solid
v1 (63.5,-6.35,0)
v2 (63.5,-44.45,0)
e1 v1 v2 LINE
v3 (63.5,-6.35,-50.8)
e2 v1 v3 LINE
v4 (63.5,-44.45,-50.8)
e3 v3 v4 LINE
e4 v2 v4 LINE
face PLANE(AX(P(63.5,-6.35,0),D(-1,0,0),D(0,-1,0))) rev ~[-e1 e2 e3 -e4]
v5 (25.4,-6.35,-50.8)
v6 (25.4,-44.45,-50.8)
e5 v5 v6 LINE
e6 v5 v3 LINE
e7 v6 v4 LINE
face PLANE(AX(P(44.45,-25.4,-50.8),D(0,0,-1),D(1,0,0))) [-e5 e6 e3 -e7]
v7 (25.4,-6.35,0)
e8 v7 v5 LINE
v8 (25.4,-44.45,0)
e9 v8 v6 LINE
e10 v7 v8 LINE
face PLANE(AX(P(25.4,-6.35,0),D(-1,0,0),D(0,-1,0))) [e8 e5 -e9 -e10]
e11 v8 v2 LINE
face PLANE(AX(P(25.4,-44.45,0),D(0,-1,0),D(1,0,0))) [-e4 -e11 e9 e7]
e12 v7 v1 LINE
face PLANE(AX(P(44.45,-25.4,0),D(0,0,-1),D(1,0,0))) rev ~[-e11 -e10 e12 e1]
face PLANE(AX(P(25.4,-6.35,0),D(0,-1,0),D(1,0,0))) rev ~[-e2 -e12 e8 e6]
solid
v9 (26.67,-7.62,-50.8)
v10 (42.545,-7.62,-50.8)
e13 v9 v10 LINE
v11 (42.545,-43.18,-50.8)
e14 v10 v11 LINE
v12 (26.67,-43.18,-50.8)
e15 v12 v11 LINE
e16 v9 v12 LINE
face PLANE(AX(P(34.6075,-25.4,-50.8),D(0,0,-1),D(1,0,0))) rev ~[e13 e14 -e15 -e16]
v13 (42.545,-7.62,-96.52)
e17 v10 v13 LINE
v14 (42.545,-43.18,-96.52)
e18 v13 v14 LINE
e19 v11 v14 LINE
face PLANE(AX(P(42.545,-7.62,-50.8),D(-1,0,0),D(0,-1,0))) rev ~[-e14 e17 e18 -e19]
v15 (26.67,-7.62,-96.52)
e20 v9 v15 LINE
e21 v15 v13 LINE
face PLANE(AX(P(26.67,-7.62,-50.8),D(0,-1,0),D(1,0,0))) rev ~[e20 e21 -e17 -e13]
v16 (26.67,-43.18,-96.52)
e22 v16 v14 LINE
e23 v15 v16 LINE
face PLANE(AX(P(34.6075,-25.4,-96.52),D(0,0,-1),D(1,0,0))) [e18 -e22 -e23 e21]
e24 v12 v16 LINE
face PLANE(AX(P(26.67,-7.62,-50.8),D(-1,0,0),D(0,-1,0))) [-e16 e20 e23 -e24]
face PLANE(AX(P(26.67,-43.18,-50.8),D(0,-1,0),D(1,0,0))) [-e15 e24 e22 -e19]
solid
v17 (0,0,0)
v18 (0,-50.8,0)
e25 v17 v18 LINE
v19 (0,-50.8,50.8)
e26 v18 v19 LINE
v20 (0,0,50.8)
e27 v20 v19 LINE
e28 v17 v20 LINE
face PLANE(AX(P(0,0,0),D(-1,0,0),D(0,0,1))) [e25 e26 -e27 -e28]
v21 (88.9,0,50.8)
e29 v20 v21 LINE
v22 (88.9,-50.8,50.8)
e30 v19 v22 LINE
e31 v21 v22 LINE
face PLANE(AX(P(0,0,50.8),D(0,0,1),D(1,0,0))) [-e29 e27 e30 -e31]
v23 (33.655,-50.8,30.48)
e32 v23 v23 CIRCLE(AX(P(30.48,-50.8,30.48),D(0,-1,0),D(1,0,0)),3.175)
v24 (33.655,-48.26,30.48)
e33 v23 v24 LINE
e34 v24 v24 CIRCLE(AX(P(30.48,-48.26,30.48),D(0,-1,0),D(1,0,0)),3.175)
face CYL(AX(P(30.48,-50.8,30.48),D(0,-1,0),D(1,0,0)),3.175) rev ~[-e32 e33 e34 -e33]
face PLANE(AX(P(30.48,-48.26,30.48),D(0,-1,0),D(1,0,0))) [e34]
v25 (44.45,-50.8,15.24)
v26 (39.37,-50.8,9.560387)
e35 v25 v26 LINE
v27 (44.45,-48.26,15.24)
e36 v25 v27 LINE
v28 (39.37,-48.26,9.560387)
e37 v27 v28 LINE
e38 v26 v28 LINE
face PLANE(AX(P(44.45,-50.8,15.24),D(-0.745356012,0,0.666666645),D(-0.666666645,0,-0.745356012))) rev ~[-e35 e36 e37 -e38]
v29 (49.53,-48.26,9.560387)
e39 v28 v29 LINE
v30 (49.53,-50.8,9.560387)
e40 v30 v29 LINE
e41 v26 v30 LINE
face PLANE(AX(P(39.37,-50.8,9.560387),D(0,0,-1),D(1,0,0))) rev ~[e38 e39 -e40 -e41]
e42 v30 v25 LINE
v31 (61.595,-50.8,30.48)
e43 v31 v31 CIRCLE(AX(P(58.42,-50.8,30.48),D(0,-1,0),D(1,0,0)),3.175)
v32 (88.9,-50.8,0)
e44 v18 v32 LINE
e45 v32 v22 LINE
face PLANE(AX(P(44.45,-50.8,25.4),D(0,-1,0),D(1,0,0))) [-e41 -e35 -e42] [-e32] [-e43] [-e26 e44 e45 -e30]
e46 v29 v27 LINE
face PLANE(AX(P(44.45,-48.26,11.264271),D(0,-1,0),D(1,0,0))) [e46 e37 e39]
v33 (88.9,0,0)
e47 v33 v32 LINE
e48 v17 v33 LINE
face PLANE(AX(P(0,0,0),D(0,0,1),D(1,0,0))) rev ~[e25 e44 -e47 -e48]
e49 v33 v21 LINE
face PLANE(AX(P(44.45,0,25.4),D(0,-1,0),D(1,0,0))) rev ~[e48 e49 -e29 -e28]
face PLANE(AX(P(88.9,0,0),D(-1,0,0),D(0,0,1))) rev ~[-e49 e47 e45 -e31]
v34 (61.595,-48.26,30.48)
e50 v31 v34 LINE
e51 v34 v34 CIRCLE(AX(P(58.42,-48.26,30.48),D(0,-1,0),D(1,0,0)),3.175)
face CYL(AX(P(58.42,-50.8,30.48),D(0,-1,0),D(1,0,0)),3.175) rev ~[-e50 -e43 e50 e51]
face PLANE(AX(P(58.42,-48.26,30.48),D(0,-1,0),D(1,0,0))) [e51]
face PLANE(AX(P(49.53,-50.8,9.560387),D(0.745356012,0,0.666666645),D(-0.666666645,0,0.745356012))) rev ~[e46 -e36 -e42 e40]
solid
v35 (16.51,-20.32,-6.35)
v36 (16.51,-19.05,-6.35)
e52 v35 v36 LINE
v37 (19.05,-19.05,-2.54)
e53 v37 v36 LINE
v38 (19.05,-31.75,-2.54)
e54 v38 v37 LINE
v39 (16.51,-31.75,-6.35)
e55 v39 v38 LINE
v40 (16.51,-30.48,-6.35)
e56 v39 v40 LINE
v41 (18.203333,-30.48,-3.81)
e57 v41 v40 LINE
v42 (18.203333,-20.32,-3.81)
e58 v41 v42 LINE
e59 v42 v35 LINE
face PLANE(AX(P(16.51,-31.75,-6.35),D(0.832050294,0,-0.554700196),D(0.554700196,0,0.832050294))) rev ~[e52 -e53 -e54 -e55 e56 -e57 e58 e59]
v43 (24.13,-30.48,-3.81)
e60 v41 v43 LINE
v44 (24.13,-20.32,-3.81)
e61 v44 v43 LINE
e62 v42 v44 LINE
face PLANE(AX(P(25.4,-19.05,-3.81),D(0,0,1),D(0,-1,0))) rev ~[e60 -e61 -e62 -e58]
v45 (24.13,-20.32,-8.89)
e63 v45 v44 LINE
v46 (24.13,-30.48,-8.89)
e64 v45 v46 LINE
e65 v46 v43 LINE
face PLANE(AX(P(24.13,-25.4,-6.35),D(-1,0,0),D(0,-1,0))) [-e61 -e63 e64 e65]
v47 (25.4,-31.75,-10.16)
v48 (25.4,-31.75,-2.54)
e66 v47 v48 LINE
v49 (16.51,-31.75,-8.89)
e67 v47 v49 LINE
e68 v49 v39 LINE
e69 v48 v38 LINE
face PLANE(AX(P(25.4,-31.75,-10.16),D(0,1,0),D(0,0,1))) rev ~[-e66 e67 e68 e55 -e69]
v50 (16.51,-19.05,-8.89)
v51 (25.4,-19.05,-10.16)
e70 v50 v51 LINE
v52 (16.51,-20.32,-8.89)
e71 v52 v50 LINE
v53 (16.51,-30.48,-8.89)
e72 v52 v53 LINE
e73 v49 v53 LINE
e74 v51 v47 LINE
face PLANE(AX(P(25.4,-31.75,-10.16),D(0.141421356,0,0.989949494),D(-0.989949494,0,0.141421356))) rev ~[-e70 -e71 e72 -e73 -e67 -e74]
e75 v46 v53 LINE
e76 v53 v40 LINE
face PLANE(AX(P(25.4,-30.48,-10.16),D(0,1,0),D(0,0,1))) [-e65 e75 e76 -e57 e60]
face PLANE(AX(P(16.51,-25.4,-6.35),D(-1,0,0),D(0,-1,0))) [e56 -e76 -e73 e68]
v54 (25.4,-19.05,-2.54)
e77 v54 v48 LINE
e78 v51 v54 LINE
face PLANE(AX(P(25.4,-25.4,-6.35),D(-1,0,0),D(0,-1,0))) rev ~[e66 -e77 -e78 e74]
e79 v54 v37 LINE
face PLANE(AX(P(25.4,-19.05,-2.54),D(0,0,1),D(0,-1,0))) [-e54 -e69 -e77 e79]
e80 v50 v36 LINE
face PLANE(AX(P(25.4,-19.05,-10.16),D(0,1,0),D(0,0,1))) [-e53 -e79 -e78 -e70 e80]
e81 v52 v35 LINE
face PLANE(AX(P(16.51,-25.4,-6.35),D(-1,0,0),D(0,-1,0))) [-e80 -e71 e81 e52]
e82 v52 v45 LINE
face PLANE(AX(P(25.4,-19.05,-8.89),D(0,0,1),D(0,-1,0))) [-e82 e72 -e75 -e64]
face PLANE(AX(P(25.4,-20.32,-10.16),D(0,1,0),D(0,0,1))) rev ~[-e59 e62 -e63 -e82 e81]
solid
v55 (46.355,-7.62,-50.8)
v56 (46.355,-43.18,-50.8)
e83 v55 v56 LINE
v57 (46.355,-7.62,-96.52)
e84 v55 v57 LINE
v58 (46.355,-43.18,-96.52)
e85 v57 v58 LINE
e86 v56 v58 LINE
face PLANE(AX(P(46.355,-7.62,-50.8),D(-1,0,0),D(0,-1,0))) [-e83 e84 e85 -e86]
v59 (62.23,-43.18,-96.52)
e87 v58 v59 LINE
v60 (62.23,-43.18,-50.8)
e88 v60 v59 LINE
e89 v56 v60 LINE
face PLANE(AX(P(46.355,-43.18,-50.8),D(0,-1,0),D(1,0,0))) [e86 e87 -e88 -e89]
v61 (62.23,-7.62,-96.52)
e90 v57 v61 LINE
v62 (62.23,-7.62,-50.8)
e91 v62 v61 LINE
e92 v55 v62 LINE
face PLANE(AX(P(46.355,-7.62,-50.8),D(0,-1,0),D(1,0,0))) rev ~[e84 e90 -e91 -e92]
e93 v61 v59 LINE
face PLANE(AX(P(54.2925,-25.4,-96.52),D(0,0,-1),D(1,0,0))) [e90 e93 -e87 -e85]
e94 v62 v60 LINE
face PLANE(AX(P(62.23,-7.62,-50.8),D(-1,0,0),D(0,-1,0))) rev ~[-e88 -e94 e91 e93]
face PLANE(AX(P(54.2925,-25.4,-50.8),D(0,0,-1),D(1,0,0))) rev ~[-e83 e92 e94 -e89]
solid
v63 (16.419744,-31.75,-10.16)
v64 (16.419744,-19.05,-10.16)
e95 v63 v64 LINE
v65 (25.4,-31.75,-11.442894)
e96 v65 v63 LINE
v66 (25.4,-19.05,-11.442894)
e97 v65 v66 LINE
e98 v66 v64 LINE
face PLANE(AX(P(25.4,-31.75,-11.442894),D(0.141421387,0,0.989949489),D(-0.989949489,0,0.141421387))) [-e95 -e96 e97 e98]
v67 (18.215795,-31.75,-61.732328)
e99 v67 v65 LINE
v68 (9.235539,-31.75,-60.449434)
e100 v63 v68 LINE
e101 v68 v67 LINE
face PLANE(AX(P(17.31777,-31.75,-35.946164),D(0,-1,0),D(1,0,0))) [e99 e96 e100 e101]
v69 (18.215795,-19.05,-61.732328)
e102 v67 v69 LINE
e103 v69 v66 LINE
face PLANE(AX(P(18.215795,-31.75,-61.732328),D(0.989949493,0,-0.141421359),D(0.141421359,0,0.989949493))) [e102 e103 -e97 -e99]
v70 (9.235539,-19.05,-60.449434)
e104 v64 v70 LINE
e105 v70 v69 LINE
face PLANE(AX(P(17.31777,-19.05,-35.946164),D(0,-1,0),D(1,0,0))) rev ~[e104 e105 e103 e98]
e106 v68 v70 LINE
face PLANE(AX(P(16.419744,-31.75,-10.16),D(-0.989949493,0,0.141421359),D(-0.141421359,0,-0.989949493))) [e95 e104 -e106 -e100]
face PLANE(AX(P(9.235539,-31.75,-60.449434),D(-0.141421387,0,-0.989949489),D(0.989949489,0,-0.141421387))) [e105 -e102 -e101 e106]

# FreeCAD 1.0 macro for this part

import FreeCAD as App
import Part
import Sketcher
Q = App.Units.Quantity


def faces_at(feature, points):
    """Names of the faces that lie closest to the given points."""
    faces = feature.Shape.Faces
    near = lambda p: min(range(len(faces)), key=lambda i: faces[i].distToShape(Part.Vertex(*p))[0])
    return sorted({f"Face{near(p) + 1}" for p in points})

doc = App.newDocument("Part")
body = doc.addObject("PartDesign::Body", "Body")

# Sketch on XZ plane
sketch1 = body.newObject("Sketcher::SketchObject", "Sketch")
sketch1.AttachmentSupport = (doc.getObject("XZ_Plane"), [""])
sketch1.MapMode = "FlatFace"
sketch1.addGeometry([
    Part.LineSegment(App.Vector(0, 51, 0), App.Vector(0, 0, 0)),
    Part.LineSegment(App.Vector(0, 0, 0), App.Vector(89, 0, 0)),
    Part.LineSegment(App.Vector(89, 0, 0), App.Vector(89, 51, 0)),
    Part.LineSegment(App.Vector(89, 51, 0), App.Vector(0, 51, 0)),
], False)
sketch1.addConstraint([
    Sketcher.Constraint("Coincident", 0, 2, 1, 1),
    Sketcher.Constraint("Coincident", 1, 2, 2, 1),
    Sketcher.Constraint("Coincident", 2, 2, 3, 1),
    Sketcher.Constraint("Coincident", 3, 2, 0, 1),
    Sketcher.Constraint("Vertical", 0),
    Sketcher.Constraint("Horizontal", 1),
    Sketcher.Constraint("Vertical", 2),
    Sketcher.Constraint("Horizontal", 3),
    Sketcher.Constraint("Coincident", 0, 2, -1, 1),
    Sketcher.Constraint("DistanceY", 0, 2, 0, 1, Q("2 in")),
    Sketcher.Constraint("DistanceX", 1, 1, 1, 2, Q("3.5 in")),
])
pad1 = body.newObject("PartDesign::Pad", "Pad")
pad1.Profile = sketch1
pad1.Length = Q("2 in")

# Sketch on XZ plane
sketch2 = body.newObject("Sketcher::SketchObject", "Sketch001")
sketch2.AttachmentSupport = (doc.getObject("XZ_Plane"), [""])
sketch2.MapMode = "FlatFace"
sketch2.AttachmentOffset = App.Placement(App.Vector(0, 0, 2 * 25.4), App.Rotation())
sketch2.addGeometry([
    Part.Circle(App.Vector(30.5, 30.5, 0), App.Vector(0, 0, 1), 3.2),  # 0
    Part.Circle(App.Vector(58.4, 30.5, 0), App.Vector(0, 0, 1), 3.2),  # 1
    Part.LineSegment(App.Vector(49.5, 9.6, 0), App.Vector(44.5, 15.2, 0)),  # 2
    Part.LineSegment(App.Vector(44.5, 15.2, 0), App.Vector(39.4, 9.6, 0)),  # 3
    Part.LineSegment(App.Vector(39.4, 9.6, 0), App.Vector(49.5, 9.6, 0)),  # 4
], False)
sketch2.addConstraint([
    Sketcher.Constraint("Coincident", 2, 2, 3, 1),
    Sketcher.Constraint("Coincident", 3, 2, 4, 1),
    Sketcher.Constraint("Coincident", 4, 2, 2, 1),
    Sketcher.Constraint("Horizontal", 4),
    Sketcher.Constraint("Equal", 0, 1),
    Sketcher.Constraint("Horizontal", 0, 3, 1, 3),
    Sketcher.Constraint("Equal", 2, 3),
    Sketcher.Constraint("Diameter", 0, Q("0.25 in")),
    Sketcher.Constraint("DistanceX", 4, 1, 4, 2, Q("0.4 in")),
    Sketcher.Constraint("Distance", 2, Q("0.3 in")),
    Sketcher.Constraint("DistanceX", -1, 1, 0, 3, Q("1.2 in")),
    Sketcher.Constraint("DistanceY", -1, 1, 0, 3, Q("1.2 in")),
    Sketcher.Constraint("DistanceX", -1, 1, 1, 3, Q("2.3 in")),
    Sketcher.Constraint("DistanceY", -1, 1, 2, 2, Q("0.6 in")),
    Sketcher.Constraint("DistanceX", -1, 1, 2, 2, Q("1.75 in")),
])
pocket1 = body.newObject("PartDesign::Pocket", "Pocket")
pocket1.Profile = sketch2
pocket1.Length = Q("0.1 in")
body2 = doc.addObject("PartDesign::Body", "Body001")

# Sketch on XY plane
sketch3 = body2.newObject("Sketcher::SketchObject", "Sketch002")
sketch3.AttachmentSupport = (doc.getObject("XY_Plane001"), [""])
sketch3.MapMode = "FlatFace"
sketch3.addGeometry([
    Part.LineSegment(App.Vector(25, -44, 0), App.Vector(25, -6, 0)),
    Part.LineSegment(App.Vector(25, -6, 0), App.Vector(64, -6, 0)),
    Part.LineSegment(App.Vector(64, -6, 0), App.Vector(64, -44, 0)),
    Part.LineSegment(App.Vector(64, -44, 0), App.Vector(25, -44, 0)),
], False)
sketch3.addConstraint([
    Sketcher.Constraint("Coincident", 0, 2, 1, 1),
    Sketcher.Constraint("Coincident", 1, 2, 2, 1),
    Sketcher.Constraint("Coincident", 2, 2, 3, 1),
    Sketcher.Constraint("Coincident", 3, 2, 0, 1),
    Sketcher.Constraint("Vertical", 0),
    Sketcher.Constraint("Horizontal", 1),
    Sketcher.Constraint("Vertical", 2),
    Sketcher.Constraint("Horizontal", 3),
    Sketcher.Constraint("Equal", 3, 0),
    Sketcher.Constraint("DistanceX", 1, 1, 1, 2, Q("1.5 in")),
    Sketcher.Constraint("DistanceX", -1, 1, 0, 2, Q("1 in")),
    Sketcher.Constraint("DistanceY", 0, 2, -1, 1, Q("0.25 in")),
])
pad2 = body2.newObject("PartDesign::Pad", "Pad001")
pad2.Profile = sketch3
pad2.Length = Q("2 in")
pad2.Reversed = True
body3 = doc.addObject("PartDesign::Body", "Body002")
body3.AllowCompound = True

# Sketch on XY plane
sketch4 = body3.newObject("Sketcher::SketchObject", "Sketch003")
sketch4.AttachmentSupport = (doc.getObject("XY_Plane002"), [""])
sketch4.MapMode = "FlatFace"
sketch4.AttachmentOffset = App.Placement(App.Vector(0, 0, -2 * 25.4), App.Rotation())
sketch4.addGeometry([
    Part.LineSegment(App.Vector(27, -43, 0), App.Vector(27, -8, 0)),  # 0
    Part.LineSegment(App.Vector(27, -8, 0), App.Vector(43, -8, 0)),  # 1
    Part.LineSegment(App.Vector(43, -8, 0), App.Vector(43, -43, 0)),  # 2
    Part.LineSegment(App.Vector(43, -43, 0), App.Vector(27, -43, 0)),  # 3
    Part.LineSegment(App.Vector(46, -43, 0), App.Vector(46, -8, 0)),  # 4
    Part.LineSegment(App.Vector(46, -8, 0), App.Vector(62, -8, 0)),  # 5
    Part.LineSegment(App.Vector(62, -8, 0), App.Vector(62, -43, 0)),  # 6
    Part.LineSegment(App.Vector(62, -43, 0), App.Vector(46, -43, 0)),  # 7
], False)
sketch4.addConstraint([
    Sketcher.Constraint("Coincident", 0, 2, 1, 1),
    Sketcher.Constraint("Coincident", 1, 2, 2, 1),
    Sketcher.Constraint("Coincident", 2, 2, 3, 1),
    Sketcher.Constraint("Coincident", 3, 2, 0, 1),
    Sketcher.Constraint("Coincident", 4, 2, 5, 1),
    Sketcher.Constraint("Coincident", 5, 2, 6, 1),
    Sketcher.Constraint("Coincident", 6, 2, 7, 1),
    Sketcher.Constraint("Coincident", 7, 2, 4, 1),
    Sketcher.Constraint("Vertical", 0),
    Sketcher.Constraint("Horizontal", 1),
    Sketcher.Constraint("Vertical", 2),
    Sketcher.Constraint("Horizontal", 3),
    Sketcher.Constraint("Vertical", 4),
    Sketcher.Constraint("Horizontal", 5),
    Sketcher.Constraint("Vertical", 6),
    Sketcher.Constraint("Horizontal", 7),
    Sketcher.Constraint("Horizontal", 1, 2, 4, 2),
    Sketcher.Constraint("Horizontal", 3, 2, 6, 2),
    Sketcher.Constraint("Equal", 3, 5),
    Sketcher.Constraint("DistanceY", 0, 1, 0, 2, Q("1.4 in")),
    Sketcher.Constraint("DistanceY", 0, 2, -1, 1, Q("0.3 in")),
    Sketcher.Constraint("DistanceX", 0, 2, 5, 2, Q("1.4 in")),
    Sketcher.Constraint("DistanceX", 1, 1, 1, 2, Q("0.625 in")),
    Sketcher.Constraint("DistanceX", -1, 1, 0, 2, Q("1.05 in")),
])
pad3 = body3.newObject("PartDesign::Pad", "Pad002")
pad3.Profile = sketch4
pad3.Length = Q("1.8 in")
pad3.Reversed = True
body4 = doc.addObject("PartDesign::Body", "Body003")

# Sketch on YZ plane
sketch5 = body4.newObject("Sketcher::SketchObject", "Sketch004")
sketch5.AttachmentSupport = (doc.getObject("YZ_Plane003"), [""])
sketch5.MapMode = "FlatFace"
sketch5.AttachmentOffset = App.Placement(App.Vector(0, 0, 1 * 25.4), App.Rotation())
sketch5.addGeometry([
    Part.LineSegment(App.Vector(-19, -3, 0), App.Vector(-19, -10, 0)),
    Part.LineSegment(App.Vector(-19, -10, 0), App.Vector(-32, -10, 0)),
    Part.LineSegment(App.Vector(-32, -10, 0), App.Vector(-32, -3, 0)),
    Part.LineSegment(App.Vector(-32, -3, 0), App.Vector(-19, -3, 0)),
], False)
sketch5.addConstraint([
    Sketcher.Constraint("Coincident", 0, 2, 1, 1),
    Sketcher.Constraint("Coincident", 1, 2, 2, 1),
    Sketcher.Constraint("Coincident", 2, 2, 3, 1),
    Sketcher.Constraint("Coincident", 3, 2, 0, 1),
    Sketcher.Constraint("Vertical", 0),
    Sketcher.Constraint("Horizontal", 1),
    Sketcher.Constraint("Vertical", 2),
    Sketcher.Constraint("Horizontal", 3),
    Sketcher.Constraint("DistanceX", 1, 2, 1, 1, Q("0.5 in")),
    Sketcher.Constraint("DistanceY", 0, 2, 0, 1, Q("0.3 in")),
    Sketcher.Constraint("DistanceY", 0, 2, -1, 1, Q("0.4 in")),
    Sketcher.Constraint("DistanceX", 0, 2, -1, 1, Q("0.75 in")),
])
pad4 = body4.newObject("PartDesign::Pad", "Pad003")
pad4.Profile = sketch5
pad4.Length = Q("0.35 in")
pad4.Reversed = True
doc.recompute()

thickness = body4.newObject("PartDesign::Thickness", "Thickness")
thickness.Base = (pad4, faces_at(pad4, [(16.51, -25.4, -6.35)]))
thickness.Value = Q("0.05 in")
thickness.Reversed = True
thickness.Join = "Arc"

# Sketch on XZ plane
sketch6 = body4.newObject("Sketcher::SketchObject", "Sketch005")
sketch6.AttachmentSupport = (doc.getObject("XZ_Plane003"), [""])
sketch6.MapMode = "FlatFace"
sketch6.AttachmentOffset = App.Placement(App.Vector(0, 0, 1.25 * 25.4), App.Rotation())
sketch6.addGeometry([
    Part.LineSegment(App.Vector(16.5, -6.3, 0), App.Vector(19.1, -2.5, 0)),  # 0
    Part.LineSegment(App.Vector(19.1, -2.5, 0), App.Vector(16.5, -2.5, 0)),  # 1
    Part.LineSegment(App.Vector(16.5, -2.5, 0), App.Vector(16.5, -6.3, 0)),  # 2
    Part.LineSegment(App.Vector(25.4, -10.2, 0), App.Vector(16.5, -8.9, 0)),  # 3
    Part.LineSegment(App.Vector(16.5, -8.9, 0), App.Vector(16.5, -10.2, 0)),  # 4
    Part.LineSegment(App.Vector(16.5, -10.2, 0), App.Vector(25.4, -10.2, 0)),  # 5
], False)
sketch6.addConstraint([
    Sketcher.Constraint("Coincident", 0, 2, 1, 1),
    Sketcher.Constraint("Coincident", 1, 2, 2, 1),
    Sketcher.Constraint("Coincident", 2, 2, 0, 1),
    Sketcher.Constraint("Coincident", 3, 2, 4, 1),
    Sketcher.Constraint("Coincident", 4, 2, 5, 1),
    Sketcher.Constraint("Coincident", 5, 2, 3, 1),
    Sketcher.Constraint("Horizontal", 1),
    Sketcher.Constraint("Vertical", 2),
    Sketcher.Constraint("Vertical", 4),
    Sketcher.Constraint("Horizontal", 5),
    Sketcher.Constraint("Vertical", 2, 2, 3, 2),
    Sketcher.Constraint("DistanceX", 1, 2, 1, 1, Q("0.1 in")),
    Sketcher.Constraint("DistanceX", -1, 1, 5, 2, Q("1 in")),
    Sketcher.Constraint("DistanceX", 5, 1, 5, 2, Q("0.35 in")),
    Sketcher.Constraint("DistanceY", 2, 2, 2, 1, Q("0.15 in")),
    Sketcher.Constraint("DistanceY", 4, 2, 4, 1, Q("0.05 in")),
    Sketcher.Constraint("DistanceY", 0, 2, -1, 1, Q("0.1 in")),
    Sketcher.Constraint("DistanceY", 4, 2, -1, 1, Q("0.4 in")),
])
pocket2 = body4.newObject("PartDesign::Pocket", "Pocket001")
pocket2.Profile = sketch6
pocket2.Length = Q("1 in")
body5 = doc.addObject("PartDesign::Body", "Body004")

# Sketch on XZ plane
sketch7 = body5.newObject("Sketcher::SketchObject", "Sketch006")
sketch7.AttachmentSupport = (doc.getObject("XZ_Plane004"), [""])
sketch7.MapMode = "FlatFace"
sketch7.AttachmentOffset = App.Placement(App.Vector(0, 0, 1.25 * 25.4), App.Rotation())
sketch7.addGeometry([
    Part.LineSegment(App.Vector(25, -11, 0), App.Vector(16, -10, 0)),
    Part.LineSegment(App.Vector(16, -10, 0), App.Vector(9, -60, 0)),
    Part.LineSegment(App.Vector(9, -60, 0), App.Vector(18, -62, 0)),
    Part.LineSegment(App.Vector(18, -62, 0), App.Vector(25, -11, 0)),
], False)
sketch7.addConstraint([
    Sketcher.Constraint("Coincident", 0, 2, 1, 1),
    Sketcher.Constraint("Coincident", 1, 2, 2, 1),
    Sketcher.Constraint("Coincident", 2, 2, 3, 1),
    Sketcher.Constraint("Coincident", 3, 2, 0, 1),
    Sketcher.Constraint("Perpendicular", 0, 1),
    Sketcher.Constraint("Perpendicular", 1, 2),
    Sketcher.Constraint("Perpendicular", 2, 3),
    Sketcher.Constraint("Distance", 1, Q("2 in")),
    Sketcher.Constraint("DistanceX", -1, 1, 3, 2, Q("1 in")),
    Sketcher.Constraint("DistanceY", 0, 2, -1, 1, Q("0.4 in")),
    Sketcher.Constraint("Distance", 0, Q("9.071428 mm")),
    Sketcher.Constraint("DistanceX", -1, 1, 1, 2, Q("9.235539 mm")),
])
pad5 = body5.newObject("PartDesign::Pad", "Pad004")
pad5.Profile = sketch7
pad5.Length = Q("0.5 in")
pad5.Reversed = True

doc.recompute()
